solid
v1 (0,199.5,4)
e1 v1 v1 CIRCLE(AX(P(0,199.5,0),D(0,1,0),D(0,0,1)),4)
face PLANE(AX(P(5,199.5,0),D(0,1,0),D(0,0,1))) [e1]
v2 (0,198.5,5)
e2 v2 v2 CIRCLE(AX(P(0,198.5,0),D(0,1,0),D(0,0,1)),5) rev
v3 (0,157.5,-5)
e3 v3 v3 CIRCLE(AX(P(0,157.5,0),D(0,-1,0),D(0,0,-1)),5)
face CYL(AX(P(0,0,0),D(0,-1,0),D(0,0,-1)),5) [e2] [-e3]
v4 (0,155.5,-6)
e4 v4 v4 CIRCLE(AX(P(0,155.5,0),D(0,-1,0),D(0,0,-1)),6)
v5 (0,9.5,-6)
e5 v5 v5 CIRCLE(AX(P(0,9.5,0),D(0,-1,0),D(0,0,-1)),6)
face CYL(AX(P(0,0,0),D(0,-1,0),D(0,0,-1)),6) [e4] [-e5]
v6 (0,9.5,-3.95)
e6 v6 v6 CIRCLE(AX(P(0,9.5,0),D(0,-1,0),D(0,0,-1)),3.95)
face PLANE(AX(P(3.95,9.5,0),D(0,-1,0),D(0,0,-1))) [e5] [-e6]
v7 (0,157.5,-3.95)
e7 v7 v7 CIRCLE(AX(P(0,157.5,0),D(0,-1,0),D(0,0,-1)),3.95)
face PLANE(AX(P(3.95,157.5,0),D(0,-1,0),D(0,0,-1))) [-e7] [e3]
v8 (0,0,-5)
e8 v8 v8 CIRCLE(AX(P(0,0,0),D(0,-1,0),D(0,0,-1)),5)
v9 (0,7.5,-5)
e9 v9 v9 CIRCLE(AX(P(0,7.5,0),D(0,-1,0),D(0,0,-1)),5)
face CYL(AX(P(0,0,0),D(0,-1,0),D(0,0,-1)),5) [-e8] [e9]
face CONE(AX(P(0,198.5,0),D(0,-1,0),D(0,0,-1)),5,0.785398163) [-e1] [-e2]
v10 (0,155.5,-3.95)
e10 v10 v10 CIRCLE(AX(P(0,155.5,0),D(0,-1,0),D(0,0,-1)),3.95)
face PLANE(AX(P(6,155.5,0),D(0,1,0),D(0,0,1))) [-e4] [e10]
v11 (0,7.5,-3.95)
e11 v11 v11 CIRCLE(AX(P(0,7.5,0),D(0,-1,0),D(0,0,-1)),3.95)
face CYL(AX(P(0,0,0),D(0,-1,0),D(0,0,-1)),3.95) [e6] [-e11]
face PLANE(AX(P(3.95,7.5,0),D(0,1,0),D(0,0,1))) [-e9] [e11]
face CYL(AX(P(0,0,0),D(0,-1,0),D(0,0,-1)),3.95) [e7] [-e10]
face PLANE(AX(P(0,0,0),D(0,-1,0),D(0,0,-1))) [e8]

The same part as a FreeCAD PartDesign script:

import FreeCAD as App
import Part
import Sketcher
Q = App.Units.Quantity


def edges_at(feature, points):
    """Names of the edges that pass closest to the given points."""
    edges = feature.Shape.Edges
    near = lambda p: min(range(len(edges)), key=lambda i: edges[i].distToShape(Part.Vertex(*p))[0])
    return sorted({f"Edge{near(p) + 1}" for p in points})

doc = App.newDocument("Part")
params = doc.addObject("Spreadsheet::Sheet", "Params")
for row, (alias, value) in enumerate([
    ("sketch1_width", "5 mm"),
    ("sketch1_height", "2 mm"),
    ("sketch1_height2", "146 mm"),
    ("sketch1_height3", "42 mm"),
    ("sketch1_height4", "7.5 mm"),
    ("revolution_angle", "360 deg"),
    ("chamfer_size", "1 mm"),
], start=1):
    params.set(f"A{row}", alias)
    params.set(f"B{row}", "=" + value)
    params.setAlias(f"B{row}", alias)

body = doc.addObject("PartDesign::Body", "Body")

sketch1 = body.newObject("Sketcher::SketchObject", "Sketch")
sketch1.AttachmentSupport = (doc.getObject("XY_Plane"), [""])
sketch1.MapMode = "FlatFace"
sketch1.addGeometry(Part.LineSegment(App.Vector(0, 0, 0), App.Vector(5, 0, 0)), False)
sketch1.addGeometry(Part.LineSegment(App.Vector(5, 0, 0), App.Vector(5, 7.5, 0)), False)
sketch1.addGeometry(Part.LineSegment(App.Vector(5, 7.5, 0), App.Vector(4, 7.5, 0)), False)
sketch1.addGeometry(Part.LineSegment(App.Vector(4, 7.5, 0), App.Vector(4, 9.5, 0)), False)
sketch1.addGeometry(Part.LineSegment(App.Vector(4, 9.5, 0), App.Vector(6, 9.5, 0)), False)
sketch1.addGeometry(Part.LineSegment(App.Vector(6, 9.5, 0), App.Vector(6, 155.5, 0)), False)
sketch1.addGeometry(Part.LineSegment(App.Vector(6, 155.5, 0), App.Vector(4, 155.5, 0)), False)
sketch1.addGeometry(Part.LineSegment(App.Vector(4, 155.5, 0), App.Vector(4, 157.5, 0)), False)
sketch1.addGeometry(Part.LineSegment(App.Vector(4, 157.5, 0), App.Vector(5, 157.5, 0)), False)
sketch1.addGeometry(Part.LineSegment(App.Vector(5, 157.5, 0), App.Vector(5, 199.5, 0)), False)
sketch1.addGeometry(Part.LineSegment(App.Vector(5, 199.5, 0), App.Vector(0, 199.5, 0)), False)
sketch1.addGeometry(Part.LineSegment(App.Vector(0, 199.5, 0), App.Vector(0, 0, 0)), False)
sketch1.addConstraint(Sketcher.Constraint("Coincident", 0, 2, 1, 1))
sketch1.addConstraint(Sketcher.Constraint("Coincident", 1, 2, 2, 1))
sketch1.addConstraint(Sketcher.Constraint("Coincident", 2, 2, 3, 1))
sketch1.addConstraint(Sketcher.Constraint("Coincident", 3, 2, 4, 1))
sketch1.addConstraint(Sketcher.Constraint("Coincident", 4, 2, 5, 1))
sketch1.addConstraint(Sketcher.Constraint("Coincident", 5, 2, 6, 1))
sketch1.addConstraint(Sketcher.Constraint("Coincident", 6, 2, 7, 1))
sketch1.addConstraint(Sketcher.Constraint("Coincident", 7, 2, 8, 1))
sketch1.addConstraint(Sketcher.Constraint("Coincident", 8, 2, 9, 1))
sketch1.addConstraint(Sketcher.Constraint("Coincident", 9, 2, 10, 1))
sketch1.addConstraint(Sketcher.Constraint("Coincident", 10, 2, 11, 1))
sketch1.addConstraint(Sketcher.Constraint("Coincident", 11, 2, 0, 1))
sketch1.addConstraint(Sketcher.Constraint("Horizontal", 0))
sketch1.addConstraint(Sketcher.Constraint("Vertical", 1))
sketch1.addConstraint(Sketcher.Constraint("Horizontal", 2))
sketch1.addConstraint(Sketcher.Constraint("Vertical", 3))
sketch1.addConstraint(Sketcher.Constraint("Horizontal", 4))
sketch1.addConstraint(Sketcher.Constraint("Vertical", 5))
sketch1.addConstraint(Sketcher.Constraint("Horizontal", 6))
sketch1.addConstraint(Sketcher.Constraint("Vertical", 7))
sketch1.addConstraint(Sketcher.Constraint("Horizontal", 8))
sketch1.addConstraint(Sketcher.Constraint("Vertical", 9))
sketch1.addConstraint(Sketcher.Constraint("Horizontal", 10))
sketch1.addConstraint(Sketcher.Constraint("Vertical", 11))
sketch1.addConstraint(Sketcher.Constraint("Coincident", 11, 2, -1, 1))
sketch1.addConstraint(Sketcher.Constraint("Vertical", 3, 2, 6, 2))
sketch1.addConstraint(Sketcher.Constraint("Vertical", 1, 2, 8, 2))
sketch1.addConstraint(Sketcher.Constraint("Equal", 3, 7))
sketch1.addConstraint(Sketcher.Constraint("DistanceX", 0, 1, 0, 2, Q("5 mm")))
sketch1.addConstraint(Sketcher.Constraint("DistanceY", 3, 1, 3, 2, Q("2 mm")))
sketch1.addConstraint(Sketcher.Constraint("DistanceY", 5, 1, 5, 2, Q("146 mm")))
sketch1.addConstraint(Sketcher.Constraint("DistanceY", 9, 1, 9, 2, Q("42 mm")))
sketch1.addConstraint(Sketcher.Constraint("DistanceY", 1, 1, 1, 2, Q("7.5 mm")))
sketch1.addConstraint(Sketcher.Constraint("DistanceX", -1, 1, 4, 2, Q("6 mm")))
sketch1.addConstraint(Sketcher.Constraint("DistanceX", 2, 2, 2, 1, Q("1.05 mm")))
sketch1.setExpression("Constraints[28]", "Params.sketch1_width")
sketch1.setExpression("Constraints[29]", "Params.sketch1_height")
sketch1.setExpression("Constraints[30]", "Params.sketch1_height2")
sketch1.setExpression("Constraints[31]", "Params.sketch1_height3")
sketch1.setExpression("Constraints[32]", "Params.sketch1_height4")
revolution = body.newObject("PartDesign::Revolution", "Revolution")
revolution.Profile = sketch1
revolution.ReferenceAxis = (sketch1, ["V_Axis"])
revolution.setExpression("Angle", "Params.revolution_angle")
doc.recompute()

chamfer = body.newObject("PartDesign::Chamfer", "Chamfer")
chamfer.Base = (revolution, edges_at(revolution, [(0, 199.5, 5)]))
chamfer.setExpression("Size", "Params.chamfer_size")

doc.recompute()
